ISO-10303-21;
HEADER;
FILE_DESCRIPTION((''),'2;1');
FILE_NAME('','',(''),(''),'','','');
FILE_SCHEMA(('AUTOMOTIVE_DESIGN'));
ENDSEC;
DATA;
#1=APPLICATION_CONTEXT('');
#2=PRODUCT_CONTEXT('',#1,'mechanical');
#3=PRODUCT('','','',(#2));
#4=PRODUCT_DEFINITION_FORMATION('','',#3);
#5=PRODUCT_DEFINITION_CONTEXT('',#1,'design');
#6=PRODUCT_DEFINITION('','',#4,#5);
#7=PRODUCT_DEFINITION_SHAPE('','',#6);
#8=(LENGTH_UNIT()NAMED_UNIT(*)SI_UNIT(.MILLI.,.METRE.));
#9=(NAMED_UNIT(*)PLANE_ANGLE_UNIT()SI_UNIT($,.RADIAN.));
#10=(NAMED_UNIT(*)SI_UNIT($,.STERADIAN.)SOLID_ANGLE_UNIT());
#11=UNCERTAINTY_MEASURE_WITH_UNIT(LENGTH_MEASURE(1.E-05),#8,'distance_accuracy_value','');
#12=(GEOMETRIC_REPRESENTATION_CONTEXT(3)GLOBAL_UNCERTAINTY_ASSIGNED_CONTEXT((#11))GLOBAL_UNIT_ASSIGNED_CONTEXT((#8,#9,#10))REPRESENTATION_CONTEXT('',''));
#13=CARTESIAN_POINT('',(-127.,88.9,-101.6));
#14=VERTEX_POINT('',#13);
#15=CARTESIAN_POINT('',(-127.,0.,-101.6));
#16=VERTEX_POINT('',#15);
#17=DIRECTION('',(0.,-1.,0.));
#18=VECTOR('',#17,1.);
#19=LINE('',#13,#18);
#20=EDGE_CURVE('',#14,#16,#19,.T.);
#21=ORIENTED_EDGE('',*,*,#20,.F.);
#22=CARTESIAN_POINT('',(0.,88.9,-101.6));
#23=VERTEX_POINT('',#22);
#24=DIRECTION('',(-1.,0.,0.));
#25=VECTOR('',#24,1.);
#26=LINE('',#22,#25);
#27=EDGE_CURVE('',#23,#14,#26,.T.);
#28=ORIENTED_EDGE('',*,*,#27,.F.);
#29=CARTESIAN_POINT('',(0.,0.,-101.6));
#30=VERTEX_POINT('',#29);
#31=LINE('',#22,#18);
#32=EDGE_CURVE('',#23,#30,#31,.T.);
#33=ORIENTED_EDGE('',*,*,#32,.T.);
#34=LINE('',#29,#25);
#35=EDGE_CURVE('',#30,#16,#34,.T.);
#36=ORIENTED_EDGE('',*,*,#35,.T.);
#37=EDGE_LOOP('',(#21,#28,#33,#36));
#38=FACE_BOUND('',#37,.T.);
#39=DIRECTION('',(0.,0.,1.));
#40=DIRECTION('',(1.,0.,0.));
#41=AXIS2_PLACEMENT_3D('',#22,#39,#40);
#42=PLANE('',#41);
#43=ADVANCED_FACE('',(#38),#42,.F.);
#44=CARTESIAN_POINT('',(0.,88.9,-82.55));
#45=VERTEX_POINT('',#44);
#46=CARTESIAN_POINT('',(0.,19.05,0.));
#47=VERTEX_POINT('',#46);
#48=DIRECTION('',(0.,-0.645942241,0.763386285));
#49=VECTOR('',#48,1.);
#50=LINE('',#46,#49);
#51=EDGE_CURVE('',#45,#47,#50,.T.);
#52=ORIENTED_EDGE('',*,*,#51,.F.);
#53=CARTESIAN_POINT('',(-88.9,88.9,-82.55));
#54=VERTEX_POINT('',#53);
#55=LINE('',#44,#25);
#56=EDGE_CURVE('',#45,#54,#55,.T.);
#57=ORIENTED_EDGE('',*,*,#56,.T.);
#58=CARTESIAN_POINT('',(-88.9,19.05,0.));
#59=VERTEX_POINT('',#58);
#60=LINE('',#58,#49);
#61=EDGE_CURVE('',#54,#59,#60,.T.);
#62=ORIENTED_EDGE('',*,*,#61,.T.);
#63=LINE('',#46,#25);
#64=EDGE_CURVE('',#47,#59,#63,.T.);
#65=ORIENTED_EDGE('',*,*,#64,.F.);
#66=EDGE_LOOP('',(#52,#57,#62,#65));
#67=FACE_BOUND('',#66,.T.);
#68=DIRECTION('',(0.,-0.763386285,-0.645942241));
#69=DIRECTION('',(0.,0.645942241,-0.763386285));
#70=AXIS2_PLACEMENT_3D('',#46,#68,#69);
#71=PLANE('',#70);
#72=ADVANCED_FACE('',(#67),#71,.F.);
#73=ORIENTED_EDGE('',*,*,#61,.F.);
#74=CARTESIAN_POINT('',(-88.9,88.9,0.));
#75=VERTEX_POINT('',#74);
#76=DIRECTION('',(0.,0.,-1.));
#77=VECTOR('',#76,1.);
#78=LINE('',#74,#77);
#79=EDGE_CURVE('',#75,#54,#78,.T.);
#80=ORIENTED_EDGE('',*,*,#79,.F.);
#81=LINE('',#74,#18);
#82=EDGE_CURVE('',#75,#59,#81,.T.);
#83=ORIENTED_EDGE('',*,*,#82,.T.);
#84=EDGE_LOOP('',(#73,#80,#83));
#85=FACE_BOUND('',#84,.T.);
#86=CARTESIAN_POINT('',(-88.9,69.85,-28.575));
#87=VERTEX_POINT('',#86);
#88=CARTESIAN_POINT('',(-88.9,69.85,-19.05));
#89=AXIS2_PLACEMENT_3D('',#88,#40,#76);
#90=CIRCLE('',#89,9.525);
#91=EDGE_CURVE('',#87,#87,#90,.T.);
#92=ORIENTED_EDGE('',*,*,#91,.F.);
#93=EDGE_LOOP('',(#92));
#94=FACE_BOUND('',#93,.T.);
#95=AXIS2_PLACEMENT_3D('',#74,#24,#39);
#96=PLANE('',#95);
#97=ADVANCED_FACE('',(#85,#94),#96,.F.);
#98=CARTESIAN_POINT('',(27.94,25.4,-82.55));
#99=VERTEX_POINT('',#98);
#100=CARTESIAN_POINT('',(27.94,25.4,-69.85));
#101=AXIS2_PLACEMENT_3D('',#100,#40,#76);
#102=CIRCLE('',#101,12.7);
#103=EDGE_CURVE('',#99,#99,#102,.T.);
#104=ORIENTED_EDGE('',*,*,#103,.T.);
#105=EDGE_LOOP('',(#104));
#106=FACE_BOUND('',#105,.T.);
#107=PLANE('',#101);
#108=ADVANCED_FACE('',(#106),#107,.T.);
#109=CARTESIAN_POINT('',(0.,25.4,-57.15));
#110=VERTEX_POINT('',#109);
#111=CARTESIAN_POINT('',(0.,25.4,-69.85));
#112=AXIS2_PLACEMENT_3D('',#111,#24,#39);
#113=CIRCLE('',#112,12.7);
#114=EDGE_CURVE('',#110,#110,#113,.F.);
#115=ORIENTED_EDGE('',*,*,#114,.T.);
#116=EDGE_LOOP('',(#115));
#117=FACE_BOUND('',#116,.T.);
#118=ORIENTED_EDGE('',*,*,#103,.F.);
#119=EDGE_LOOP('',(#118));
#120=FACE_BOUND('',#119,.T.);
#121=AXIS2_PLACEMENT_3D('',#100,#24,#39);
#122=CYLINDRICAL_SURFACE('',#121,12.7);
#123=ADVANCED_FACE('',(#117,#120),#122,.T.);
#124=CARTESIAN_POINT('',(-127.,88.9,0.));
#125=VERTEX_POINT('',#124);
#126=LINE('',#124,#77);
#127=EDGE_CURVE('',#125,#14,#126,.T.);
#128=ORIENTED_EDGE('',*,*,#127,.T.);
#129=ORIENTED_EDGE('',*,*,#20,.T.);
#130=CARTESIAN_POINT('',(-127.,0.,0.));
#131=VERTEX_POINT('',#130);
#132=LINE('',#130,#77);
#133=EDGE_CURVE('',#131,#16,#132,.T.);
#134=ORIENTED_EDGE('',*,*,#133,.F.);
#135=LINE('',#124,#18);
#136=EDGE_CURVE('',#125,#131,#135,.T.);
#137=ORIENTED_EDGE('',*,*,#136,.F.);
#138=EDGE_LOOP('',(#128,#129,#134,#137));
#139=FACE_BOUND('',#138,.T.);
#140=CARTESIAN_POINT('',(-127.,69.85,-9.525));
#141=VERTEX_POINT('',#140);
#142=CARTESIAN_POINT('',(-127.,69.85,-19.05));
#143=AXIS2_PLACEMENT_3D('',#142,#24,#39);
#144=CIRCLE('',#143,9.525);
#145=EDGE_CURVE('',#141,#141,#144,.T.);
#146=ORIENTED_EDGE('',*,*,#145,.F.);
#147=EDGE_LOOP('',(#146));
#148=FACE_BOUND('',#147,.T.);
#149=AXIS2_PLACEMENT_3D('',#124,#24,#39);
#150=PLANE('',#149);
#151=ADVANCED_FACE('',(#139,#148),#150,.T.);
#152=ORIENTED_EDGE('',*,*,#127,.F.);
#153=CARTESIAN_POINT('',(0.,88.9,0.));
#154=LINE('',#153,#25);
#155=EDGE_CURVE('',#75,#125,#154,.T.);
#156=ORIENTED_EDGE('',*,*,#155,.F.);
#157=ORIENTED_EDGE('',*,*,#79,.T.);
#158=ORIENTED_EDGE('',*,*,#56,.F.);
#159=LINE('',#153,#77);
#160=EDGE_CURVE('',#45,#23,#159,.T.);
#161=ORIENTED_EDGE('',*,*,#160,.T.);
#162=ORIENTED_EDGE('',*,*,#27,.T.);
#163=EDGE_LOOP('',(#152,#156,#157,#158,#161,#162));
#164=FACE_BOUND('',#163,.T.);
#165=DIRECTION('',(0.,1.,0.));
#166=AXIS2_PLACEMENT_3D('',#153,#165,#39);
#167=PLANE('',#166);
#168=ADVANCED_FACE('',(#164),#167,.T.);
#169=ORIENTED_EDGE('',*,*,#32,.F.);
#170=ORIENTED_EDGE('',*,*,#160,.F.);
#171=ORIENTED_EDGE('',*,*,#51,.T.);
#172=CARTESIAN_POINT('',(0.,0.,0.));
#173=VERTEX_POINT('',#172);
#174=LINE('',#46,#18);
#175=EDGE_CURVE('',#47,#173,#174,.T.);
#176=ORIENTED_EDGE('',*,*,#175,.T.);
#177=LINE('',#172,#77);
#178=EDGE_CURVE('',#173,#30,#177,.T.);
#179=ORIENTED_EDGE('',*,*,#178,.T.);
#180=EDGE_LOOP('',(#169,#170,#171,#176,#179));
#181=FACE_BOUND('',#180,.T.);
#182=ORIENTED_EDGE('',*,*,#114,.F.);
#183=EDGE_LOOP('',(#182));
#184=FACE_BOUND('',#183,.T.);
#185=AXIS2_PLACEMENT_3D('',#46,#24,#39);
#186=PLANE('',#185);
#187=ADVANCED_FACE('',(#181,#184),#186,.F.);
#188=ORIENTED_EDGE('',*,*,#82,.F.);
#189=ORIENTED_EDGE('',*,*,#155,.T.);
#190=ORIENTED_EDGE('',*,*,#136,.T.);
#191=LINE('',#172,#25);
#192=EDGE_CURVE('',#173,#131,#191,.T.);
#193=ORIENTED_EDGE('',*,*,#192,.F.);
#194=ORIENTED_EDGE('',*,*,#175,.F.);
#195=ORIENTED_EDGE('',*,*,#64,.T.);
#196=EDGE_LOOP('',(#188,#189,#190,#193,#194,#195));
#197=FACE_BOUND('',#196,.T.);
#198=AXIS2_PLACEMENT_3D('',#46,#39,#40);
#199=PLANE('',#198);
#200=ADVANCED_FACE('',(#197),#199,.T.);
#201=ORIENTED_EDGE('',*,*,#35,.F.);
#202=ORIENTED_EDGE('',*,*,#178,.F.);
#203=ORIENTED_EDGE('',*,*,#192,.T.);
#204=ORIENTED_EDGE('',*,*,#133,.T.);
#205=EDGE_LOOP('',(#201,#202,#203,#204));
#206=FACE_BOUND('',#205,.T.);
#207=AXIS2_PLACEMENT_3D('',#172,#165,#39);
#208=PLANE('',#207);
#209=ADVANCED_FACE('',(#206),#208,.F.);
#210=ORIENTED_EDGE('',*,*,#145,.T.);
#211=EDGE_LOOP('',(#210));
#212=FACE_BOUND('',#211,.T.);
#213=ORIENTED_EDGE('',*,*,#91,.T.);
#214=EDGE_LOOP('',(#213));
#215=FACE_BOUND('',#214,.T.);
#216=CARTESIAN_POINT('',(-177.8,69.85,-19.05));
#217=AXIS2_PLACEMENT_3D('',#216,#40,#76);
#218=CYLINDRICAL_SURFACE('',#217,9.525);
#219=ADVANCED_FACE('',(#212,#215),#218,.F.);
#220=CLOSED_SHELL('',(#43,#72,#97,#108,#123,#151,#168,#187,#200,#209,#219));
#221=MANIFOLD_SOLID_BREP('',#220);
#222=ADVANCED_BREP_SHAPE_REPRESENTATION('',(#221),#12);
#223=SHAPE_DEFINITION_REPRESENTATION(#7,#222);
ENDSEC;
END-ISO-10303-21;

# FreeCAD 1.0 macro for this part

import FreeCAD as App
import Part
import Sketcher
from FreeCAD import Vector
Q = App.Units.Quantity

doc = App.newDocument("Part")
body = doc.addObject("PartDesign::Body", "Body")

# Sketch on XZ plane
sketch1 = body.newObject("Sketcher::SketchObject", "Sketch")
sketch1.AttachmentSupport = (doc.getObject("XZ_Plane"), [""])
sketch1.MapMode = "FlatFace"
sketch1.addGeometry(Part.LineSegment(Vector(-88.9, -82.55, 0), Vector(-88.9, 0, 0)), False)
sketch1.addGeometry(Part.LineSegment(Vector(-88.9, 0, 0), Vector(0, 0, 0)), False)
sketch1.addGeometry(Part.LineSegment(Vector(0, 0, 0), Vector(0, -82.55, 0)), False)
sketch1.addGeometry(Part.LineSegment(Vector(0, -82.55, 0), Vector(-88.9, -82.55, 0)), False)
sketch1.addConstraint(Sketcher.Constraint("Coincident", 0, 2, 1, 1))
sketch1.addConstraint(Sketcher.Constraint("Coincident", 1, 2, 2, 1))
sketch1.addConstraint(Sketcher.Constraint("Coincident", 2, 2, 3, 1))
sketch1.addConstraint(Sketcher.Constraint("Coincident", 3, 2, 0, 1))
sketch1.addConstraint(Sketcher.Constraint("Vertical", 0))
sketch1.addConstraint(Sketcher.Constraint("Horizontal", 1))
sketch1.addConstraint(Sketcher.Constraint("Vertical", 2))
sketch1.addConstraint(Sketcher.Constraint("Horizontal", 3))
sketch1.addConstraint(Sketcher.Constraint("Coincident", 1, 2, -1, 1))
sketch1.addConstraint(Sketcher.Constraint("DistanceX", 1, 1, 1, 2, Q("3.5 in")))
sketch1.addConstraint(Sketcher.Constraint("DistanceY", 0, 1, 0, 2, Q("3.25 in")))
pad1 = body.newObject("PartDesign::Pad", "Pad")
pad1.Profile = sketch1
pad1.Length = Q("0.75 in")
pad1.Reversed = True

# Sketch on XZ plane
sketch2 = body.newObject("Sketcher::SketchObject", "Sketch001")
sketch2.AttachmentSupport = (doc.getObject("XZ_Plane"), [""])
sketch2.MapMode = "FlatFace"
sketch2.addGeometry(Part.LineSegment(Vector(-88.9, -82.55, 0), Vector(0, -82.55, 0)), False)
sketch2.addGeometry(Part.LineSegment(Vector(0, -82.55, 0), Vector(0, -101.6, 0)), False)
sketch2.addGeometry(Part.LineSegment(Vector(0, -101.6, 0), Vector(-127, -101.6, 0)), False)
sketch2.addGeometry(Part.LineSegment(Vector(-127, -101.6, 0), Vector(-127, 0, 0)), False)
sketch2.addGeometry(Part.LineSegment(Vector(-127, 0, 0), Vector(-88.9, 0, 0)), False)
sketch2.addGeometry(Part.LineSegment(Vector(-88.9, 0, 0), Vector(-88.9, -82.55, 0)), False)
sketch2.addConstraint(Sketcher.Constraint("Coincident", 0, 2, 1, 1))
sketch2.addConstraint(Sketcher.Constraint("Coincident", 1, 2, 2, 1))
sketch2.addConstraint(Sketcher.Constraint("Coincident", 2, 2, 3, 1))
sketch2.addConstraint(Sketcher.Constraint("Coincident", 3, 2, 4, 1))
sketch2.addConstraint(Sketcher.Constraint("Coincident", 4, 2, 5, 1))
sketch2.addConstraint(Sketcher.Constraint("Coincident", 5, 2, 0, 1))
sketch2.addConstraint(Sketcher.Constraint("Horizontal", 0))
sketch2.addConstraint(Sketcher.Constraint("Vertical", 1))
sketch2.addConstraint(Sketcher.Constraint("Horizontal", 2))
sketch2.addConstraint(Sketcher.Constraint("Vertical", 3))
sketch2.addConstraint(Sketcher.Constraint("Horizontal", 4))
sketch2.addConstraint(Sketcher.Constraint("Vertical", 5))
sketch2.addConstraint(Sketcher.Constraint("PointOnObject", 0, 2, -2))
sketch2.addConstraint(Sketcher.Constraint("PointOnObject", 3, 2, -1))
sketch2.addConstraint(Sketcher.Constraint("DistanceX", 2, 2, 2, 1, Q("5 in")))
sketch2.addConstraint(Sketcher.Constraint("DistanceY", 3, 1, 3, 2, Q("4 in")))
sketch2.addConstraint(Sketcher.Constraint("DistanceX", 0, 1, 0, 2, Q("3.5 in")))
sketch2.addConstraint(Sketcher.Constraint("DistanceY", 1, 2, 1, 1, Q("0.75 in")))
pad2 = body.newObject("PartDesign::Pad", "Pad001")
pad2.Profile = sketch2
pad2.Length = Q("3.5 in")
pad2.Reversed = True

# Sketch on YZ plane
sketch3 = body.newObject("Sketcher::SketchObject", "Sketch002")
sketch3.AttachmentSupport = (doc.getObject("YZ_Plane"), [""])
sketch3.MapMode = "FlatFace"
sketch3.AttachmentOffset = App.Placement(Vector(0, 0, -3.5 * 25.4), App.Rotation())
sketch3.addGeometry(Part.LineSegment(Vector(88.9, -82.55, 0), Vector(19.05, 0, 0)), False)
sketch3.addGeometry(Part.LineSegment(Vector(19.05, 0, 0), Vector(19.05, -82.55, 0)), False)
sketch3.addGeometry(Part.LineSegment(Vector(19.05, -82.55, 0), Vector(88.9, -82.55, 0)), False)
sketch3.addConstraint(Sketcher.Constraint("Coincident", 0, 2, 1, 1))
sketch3.addConstraint(Sketcher.Constraint("Coincident", 1, 2, 2, 1))
sketch3.addConstraint(Sketcher.Constraint("Coincident", 2, 2, 0, 1))
sketch3.addConstraint(Sketcher.Constraint("Vertical", 1))
sketch3.addConstraint(Sketcher.Constraint("Horizontal", 2))
sketch3.addConstraint(Sketcher.Constraint("PointOnObject", 0, 2, -1))
sketch3.addConstraint(Sketcher.Constraint("DistanceX", 2, 1, 2, 2, Q("2.75 in")))
sketch3.addConstraint(Sketcher.Constraint("DistanceY", 1, 2, 1, 1, Q("3.25 in")))
sketch3.addConstraint(Sketcher.Constraint("DistanceX", -1, 1, 2, 2, Q("3.5 in")))
pad3 = body.newObject("PartDesign::Pad", "Pad002")
pad3.Profile = sketch3
pad3.Length = Q("3.5 in")

# Sketch on YZ plane
sketch4 = body.newObject("Sketcher::SketchObject", "Sketch003")
sketch4.AttachmentSupport = (doc.getObject("YZ_Plane"), [""])
sketch4.MapMode = "FlatFace"
sketch4.AttachmentOffset = App.Placement(Vector(0, 0, -3.5 * 25.4), App.Rotation())
sketch4.addGeometry(Part.Circle(Vector(69.85, -19.05, 0), Vector(0, 0, 1), 9.525), False)
sketch4.addConstraint(Sketcher.Constraint("Diameter", 0, Q("0.75 in")))
sketch4.addConstraint(Sketcher.Constraint("DistanceX", -1, 1, 0, 3, Q("2.75 in")))
sketch4.addConstraint(Sketcher.Constraint("DistanceY", 0, 3, -1, 1, Q("0.75 in")))
pocket1 = body.newObject("PartDesign::Pocket", "Pocket")
pocket1.Profile = sketch4
pocket1.Length = Q("3.5 in")

# Sketch on YZ plane
sketch5 = body.newObject("Sketcher::SketchObject", "Sketch004")
sketch5.AttachmentSupport = (doc.getObject("YZ_Plane"), [""])
sketch5.MapMode = "FlatFace"
sketch5.addGeometry(Part.Circle(Vector(25.4, -69.85, 0), Vector(0, 0, 1), 12.7), False)
sketch5.addConstraint(Sketcher.Constraint("Diameter", 0, Q("1 in")))
sketch5.addConstraint(Sketcher.Constraint("DistanceX", -1, 1, 0, 3, Q("1 in")))
sketch5.addConstraint(Sketcher.Constraint("DistanceY", 0, 3, -1, 1, Q("2.75 in")))
pad4 = body.newObject("PartDesign::Pad", "Pad003")
pad4.Profile = sketch5
pad4.Length = Q("1.1 in")

doc.recompute()
